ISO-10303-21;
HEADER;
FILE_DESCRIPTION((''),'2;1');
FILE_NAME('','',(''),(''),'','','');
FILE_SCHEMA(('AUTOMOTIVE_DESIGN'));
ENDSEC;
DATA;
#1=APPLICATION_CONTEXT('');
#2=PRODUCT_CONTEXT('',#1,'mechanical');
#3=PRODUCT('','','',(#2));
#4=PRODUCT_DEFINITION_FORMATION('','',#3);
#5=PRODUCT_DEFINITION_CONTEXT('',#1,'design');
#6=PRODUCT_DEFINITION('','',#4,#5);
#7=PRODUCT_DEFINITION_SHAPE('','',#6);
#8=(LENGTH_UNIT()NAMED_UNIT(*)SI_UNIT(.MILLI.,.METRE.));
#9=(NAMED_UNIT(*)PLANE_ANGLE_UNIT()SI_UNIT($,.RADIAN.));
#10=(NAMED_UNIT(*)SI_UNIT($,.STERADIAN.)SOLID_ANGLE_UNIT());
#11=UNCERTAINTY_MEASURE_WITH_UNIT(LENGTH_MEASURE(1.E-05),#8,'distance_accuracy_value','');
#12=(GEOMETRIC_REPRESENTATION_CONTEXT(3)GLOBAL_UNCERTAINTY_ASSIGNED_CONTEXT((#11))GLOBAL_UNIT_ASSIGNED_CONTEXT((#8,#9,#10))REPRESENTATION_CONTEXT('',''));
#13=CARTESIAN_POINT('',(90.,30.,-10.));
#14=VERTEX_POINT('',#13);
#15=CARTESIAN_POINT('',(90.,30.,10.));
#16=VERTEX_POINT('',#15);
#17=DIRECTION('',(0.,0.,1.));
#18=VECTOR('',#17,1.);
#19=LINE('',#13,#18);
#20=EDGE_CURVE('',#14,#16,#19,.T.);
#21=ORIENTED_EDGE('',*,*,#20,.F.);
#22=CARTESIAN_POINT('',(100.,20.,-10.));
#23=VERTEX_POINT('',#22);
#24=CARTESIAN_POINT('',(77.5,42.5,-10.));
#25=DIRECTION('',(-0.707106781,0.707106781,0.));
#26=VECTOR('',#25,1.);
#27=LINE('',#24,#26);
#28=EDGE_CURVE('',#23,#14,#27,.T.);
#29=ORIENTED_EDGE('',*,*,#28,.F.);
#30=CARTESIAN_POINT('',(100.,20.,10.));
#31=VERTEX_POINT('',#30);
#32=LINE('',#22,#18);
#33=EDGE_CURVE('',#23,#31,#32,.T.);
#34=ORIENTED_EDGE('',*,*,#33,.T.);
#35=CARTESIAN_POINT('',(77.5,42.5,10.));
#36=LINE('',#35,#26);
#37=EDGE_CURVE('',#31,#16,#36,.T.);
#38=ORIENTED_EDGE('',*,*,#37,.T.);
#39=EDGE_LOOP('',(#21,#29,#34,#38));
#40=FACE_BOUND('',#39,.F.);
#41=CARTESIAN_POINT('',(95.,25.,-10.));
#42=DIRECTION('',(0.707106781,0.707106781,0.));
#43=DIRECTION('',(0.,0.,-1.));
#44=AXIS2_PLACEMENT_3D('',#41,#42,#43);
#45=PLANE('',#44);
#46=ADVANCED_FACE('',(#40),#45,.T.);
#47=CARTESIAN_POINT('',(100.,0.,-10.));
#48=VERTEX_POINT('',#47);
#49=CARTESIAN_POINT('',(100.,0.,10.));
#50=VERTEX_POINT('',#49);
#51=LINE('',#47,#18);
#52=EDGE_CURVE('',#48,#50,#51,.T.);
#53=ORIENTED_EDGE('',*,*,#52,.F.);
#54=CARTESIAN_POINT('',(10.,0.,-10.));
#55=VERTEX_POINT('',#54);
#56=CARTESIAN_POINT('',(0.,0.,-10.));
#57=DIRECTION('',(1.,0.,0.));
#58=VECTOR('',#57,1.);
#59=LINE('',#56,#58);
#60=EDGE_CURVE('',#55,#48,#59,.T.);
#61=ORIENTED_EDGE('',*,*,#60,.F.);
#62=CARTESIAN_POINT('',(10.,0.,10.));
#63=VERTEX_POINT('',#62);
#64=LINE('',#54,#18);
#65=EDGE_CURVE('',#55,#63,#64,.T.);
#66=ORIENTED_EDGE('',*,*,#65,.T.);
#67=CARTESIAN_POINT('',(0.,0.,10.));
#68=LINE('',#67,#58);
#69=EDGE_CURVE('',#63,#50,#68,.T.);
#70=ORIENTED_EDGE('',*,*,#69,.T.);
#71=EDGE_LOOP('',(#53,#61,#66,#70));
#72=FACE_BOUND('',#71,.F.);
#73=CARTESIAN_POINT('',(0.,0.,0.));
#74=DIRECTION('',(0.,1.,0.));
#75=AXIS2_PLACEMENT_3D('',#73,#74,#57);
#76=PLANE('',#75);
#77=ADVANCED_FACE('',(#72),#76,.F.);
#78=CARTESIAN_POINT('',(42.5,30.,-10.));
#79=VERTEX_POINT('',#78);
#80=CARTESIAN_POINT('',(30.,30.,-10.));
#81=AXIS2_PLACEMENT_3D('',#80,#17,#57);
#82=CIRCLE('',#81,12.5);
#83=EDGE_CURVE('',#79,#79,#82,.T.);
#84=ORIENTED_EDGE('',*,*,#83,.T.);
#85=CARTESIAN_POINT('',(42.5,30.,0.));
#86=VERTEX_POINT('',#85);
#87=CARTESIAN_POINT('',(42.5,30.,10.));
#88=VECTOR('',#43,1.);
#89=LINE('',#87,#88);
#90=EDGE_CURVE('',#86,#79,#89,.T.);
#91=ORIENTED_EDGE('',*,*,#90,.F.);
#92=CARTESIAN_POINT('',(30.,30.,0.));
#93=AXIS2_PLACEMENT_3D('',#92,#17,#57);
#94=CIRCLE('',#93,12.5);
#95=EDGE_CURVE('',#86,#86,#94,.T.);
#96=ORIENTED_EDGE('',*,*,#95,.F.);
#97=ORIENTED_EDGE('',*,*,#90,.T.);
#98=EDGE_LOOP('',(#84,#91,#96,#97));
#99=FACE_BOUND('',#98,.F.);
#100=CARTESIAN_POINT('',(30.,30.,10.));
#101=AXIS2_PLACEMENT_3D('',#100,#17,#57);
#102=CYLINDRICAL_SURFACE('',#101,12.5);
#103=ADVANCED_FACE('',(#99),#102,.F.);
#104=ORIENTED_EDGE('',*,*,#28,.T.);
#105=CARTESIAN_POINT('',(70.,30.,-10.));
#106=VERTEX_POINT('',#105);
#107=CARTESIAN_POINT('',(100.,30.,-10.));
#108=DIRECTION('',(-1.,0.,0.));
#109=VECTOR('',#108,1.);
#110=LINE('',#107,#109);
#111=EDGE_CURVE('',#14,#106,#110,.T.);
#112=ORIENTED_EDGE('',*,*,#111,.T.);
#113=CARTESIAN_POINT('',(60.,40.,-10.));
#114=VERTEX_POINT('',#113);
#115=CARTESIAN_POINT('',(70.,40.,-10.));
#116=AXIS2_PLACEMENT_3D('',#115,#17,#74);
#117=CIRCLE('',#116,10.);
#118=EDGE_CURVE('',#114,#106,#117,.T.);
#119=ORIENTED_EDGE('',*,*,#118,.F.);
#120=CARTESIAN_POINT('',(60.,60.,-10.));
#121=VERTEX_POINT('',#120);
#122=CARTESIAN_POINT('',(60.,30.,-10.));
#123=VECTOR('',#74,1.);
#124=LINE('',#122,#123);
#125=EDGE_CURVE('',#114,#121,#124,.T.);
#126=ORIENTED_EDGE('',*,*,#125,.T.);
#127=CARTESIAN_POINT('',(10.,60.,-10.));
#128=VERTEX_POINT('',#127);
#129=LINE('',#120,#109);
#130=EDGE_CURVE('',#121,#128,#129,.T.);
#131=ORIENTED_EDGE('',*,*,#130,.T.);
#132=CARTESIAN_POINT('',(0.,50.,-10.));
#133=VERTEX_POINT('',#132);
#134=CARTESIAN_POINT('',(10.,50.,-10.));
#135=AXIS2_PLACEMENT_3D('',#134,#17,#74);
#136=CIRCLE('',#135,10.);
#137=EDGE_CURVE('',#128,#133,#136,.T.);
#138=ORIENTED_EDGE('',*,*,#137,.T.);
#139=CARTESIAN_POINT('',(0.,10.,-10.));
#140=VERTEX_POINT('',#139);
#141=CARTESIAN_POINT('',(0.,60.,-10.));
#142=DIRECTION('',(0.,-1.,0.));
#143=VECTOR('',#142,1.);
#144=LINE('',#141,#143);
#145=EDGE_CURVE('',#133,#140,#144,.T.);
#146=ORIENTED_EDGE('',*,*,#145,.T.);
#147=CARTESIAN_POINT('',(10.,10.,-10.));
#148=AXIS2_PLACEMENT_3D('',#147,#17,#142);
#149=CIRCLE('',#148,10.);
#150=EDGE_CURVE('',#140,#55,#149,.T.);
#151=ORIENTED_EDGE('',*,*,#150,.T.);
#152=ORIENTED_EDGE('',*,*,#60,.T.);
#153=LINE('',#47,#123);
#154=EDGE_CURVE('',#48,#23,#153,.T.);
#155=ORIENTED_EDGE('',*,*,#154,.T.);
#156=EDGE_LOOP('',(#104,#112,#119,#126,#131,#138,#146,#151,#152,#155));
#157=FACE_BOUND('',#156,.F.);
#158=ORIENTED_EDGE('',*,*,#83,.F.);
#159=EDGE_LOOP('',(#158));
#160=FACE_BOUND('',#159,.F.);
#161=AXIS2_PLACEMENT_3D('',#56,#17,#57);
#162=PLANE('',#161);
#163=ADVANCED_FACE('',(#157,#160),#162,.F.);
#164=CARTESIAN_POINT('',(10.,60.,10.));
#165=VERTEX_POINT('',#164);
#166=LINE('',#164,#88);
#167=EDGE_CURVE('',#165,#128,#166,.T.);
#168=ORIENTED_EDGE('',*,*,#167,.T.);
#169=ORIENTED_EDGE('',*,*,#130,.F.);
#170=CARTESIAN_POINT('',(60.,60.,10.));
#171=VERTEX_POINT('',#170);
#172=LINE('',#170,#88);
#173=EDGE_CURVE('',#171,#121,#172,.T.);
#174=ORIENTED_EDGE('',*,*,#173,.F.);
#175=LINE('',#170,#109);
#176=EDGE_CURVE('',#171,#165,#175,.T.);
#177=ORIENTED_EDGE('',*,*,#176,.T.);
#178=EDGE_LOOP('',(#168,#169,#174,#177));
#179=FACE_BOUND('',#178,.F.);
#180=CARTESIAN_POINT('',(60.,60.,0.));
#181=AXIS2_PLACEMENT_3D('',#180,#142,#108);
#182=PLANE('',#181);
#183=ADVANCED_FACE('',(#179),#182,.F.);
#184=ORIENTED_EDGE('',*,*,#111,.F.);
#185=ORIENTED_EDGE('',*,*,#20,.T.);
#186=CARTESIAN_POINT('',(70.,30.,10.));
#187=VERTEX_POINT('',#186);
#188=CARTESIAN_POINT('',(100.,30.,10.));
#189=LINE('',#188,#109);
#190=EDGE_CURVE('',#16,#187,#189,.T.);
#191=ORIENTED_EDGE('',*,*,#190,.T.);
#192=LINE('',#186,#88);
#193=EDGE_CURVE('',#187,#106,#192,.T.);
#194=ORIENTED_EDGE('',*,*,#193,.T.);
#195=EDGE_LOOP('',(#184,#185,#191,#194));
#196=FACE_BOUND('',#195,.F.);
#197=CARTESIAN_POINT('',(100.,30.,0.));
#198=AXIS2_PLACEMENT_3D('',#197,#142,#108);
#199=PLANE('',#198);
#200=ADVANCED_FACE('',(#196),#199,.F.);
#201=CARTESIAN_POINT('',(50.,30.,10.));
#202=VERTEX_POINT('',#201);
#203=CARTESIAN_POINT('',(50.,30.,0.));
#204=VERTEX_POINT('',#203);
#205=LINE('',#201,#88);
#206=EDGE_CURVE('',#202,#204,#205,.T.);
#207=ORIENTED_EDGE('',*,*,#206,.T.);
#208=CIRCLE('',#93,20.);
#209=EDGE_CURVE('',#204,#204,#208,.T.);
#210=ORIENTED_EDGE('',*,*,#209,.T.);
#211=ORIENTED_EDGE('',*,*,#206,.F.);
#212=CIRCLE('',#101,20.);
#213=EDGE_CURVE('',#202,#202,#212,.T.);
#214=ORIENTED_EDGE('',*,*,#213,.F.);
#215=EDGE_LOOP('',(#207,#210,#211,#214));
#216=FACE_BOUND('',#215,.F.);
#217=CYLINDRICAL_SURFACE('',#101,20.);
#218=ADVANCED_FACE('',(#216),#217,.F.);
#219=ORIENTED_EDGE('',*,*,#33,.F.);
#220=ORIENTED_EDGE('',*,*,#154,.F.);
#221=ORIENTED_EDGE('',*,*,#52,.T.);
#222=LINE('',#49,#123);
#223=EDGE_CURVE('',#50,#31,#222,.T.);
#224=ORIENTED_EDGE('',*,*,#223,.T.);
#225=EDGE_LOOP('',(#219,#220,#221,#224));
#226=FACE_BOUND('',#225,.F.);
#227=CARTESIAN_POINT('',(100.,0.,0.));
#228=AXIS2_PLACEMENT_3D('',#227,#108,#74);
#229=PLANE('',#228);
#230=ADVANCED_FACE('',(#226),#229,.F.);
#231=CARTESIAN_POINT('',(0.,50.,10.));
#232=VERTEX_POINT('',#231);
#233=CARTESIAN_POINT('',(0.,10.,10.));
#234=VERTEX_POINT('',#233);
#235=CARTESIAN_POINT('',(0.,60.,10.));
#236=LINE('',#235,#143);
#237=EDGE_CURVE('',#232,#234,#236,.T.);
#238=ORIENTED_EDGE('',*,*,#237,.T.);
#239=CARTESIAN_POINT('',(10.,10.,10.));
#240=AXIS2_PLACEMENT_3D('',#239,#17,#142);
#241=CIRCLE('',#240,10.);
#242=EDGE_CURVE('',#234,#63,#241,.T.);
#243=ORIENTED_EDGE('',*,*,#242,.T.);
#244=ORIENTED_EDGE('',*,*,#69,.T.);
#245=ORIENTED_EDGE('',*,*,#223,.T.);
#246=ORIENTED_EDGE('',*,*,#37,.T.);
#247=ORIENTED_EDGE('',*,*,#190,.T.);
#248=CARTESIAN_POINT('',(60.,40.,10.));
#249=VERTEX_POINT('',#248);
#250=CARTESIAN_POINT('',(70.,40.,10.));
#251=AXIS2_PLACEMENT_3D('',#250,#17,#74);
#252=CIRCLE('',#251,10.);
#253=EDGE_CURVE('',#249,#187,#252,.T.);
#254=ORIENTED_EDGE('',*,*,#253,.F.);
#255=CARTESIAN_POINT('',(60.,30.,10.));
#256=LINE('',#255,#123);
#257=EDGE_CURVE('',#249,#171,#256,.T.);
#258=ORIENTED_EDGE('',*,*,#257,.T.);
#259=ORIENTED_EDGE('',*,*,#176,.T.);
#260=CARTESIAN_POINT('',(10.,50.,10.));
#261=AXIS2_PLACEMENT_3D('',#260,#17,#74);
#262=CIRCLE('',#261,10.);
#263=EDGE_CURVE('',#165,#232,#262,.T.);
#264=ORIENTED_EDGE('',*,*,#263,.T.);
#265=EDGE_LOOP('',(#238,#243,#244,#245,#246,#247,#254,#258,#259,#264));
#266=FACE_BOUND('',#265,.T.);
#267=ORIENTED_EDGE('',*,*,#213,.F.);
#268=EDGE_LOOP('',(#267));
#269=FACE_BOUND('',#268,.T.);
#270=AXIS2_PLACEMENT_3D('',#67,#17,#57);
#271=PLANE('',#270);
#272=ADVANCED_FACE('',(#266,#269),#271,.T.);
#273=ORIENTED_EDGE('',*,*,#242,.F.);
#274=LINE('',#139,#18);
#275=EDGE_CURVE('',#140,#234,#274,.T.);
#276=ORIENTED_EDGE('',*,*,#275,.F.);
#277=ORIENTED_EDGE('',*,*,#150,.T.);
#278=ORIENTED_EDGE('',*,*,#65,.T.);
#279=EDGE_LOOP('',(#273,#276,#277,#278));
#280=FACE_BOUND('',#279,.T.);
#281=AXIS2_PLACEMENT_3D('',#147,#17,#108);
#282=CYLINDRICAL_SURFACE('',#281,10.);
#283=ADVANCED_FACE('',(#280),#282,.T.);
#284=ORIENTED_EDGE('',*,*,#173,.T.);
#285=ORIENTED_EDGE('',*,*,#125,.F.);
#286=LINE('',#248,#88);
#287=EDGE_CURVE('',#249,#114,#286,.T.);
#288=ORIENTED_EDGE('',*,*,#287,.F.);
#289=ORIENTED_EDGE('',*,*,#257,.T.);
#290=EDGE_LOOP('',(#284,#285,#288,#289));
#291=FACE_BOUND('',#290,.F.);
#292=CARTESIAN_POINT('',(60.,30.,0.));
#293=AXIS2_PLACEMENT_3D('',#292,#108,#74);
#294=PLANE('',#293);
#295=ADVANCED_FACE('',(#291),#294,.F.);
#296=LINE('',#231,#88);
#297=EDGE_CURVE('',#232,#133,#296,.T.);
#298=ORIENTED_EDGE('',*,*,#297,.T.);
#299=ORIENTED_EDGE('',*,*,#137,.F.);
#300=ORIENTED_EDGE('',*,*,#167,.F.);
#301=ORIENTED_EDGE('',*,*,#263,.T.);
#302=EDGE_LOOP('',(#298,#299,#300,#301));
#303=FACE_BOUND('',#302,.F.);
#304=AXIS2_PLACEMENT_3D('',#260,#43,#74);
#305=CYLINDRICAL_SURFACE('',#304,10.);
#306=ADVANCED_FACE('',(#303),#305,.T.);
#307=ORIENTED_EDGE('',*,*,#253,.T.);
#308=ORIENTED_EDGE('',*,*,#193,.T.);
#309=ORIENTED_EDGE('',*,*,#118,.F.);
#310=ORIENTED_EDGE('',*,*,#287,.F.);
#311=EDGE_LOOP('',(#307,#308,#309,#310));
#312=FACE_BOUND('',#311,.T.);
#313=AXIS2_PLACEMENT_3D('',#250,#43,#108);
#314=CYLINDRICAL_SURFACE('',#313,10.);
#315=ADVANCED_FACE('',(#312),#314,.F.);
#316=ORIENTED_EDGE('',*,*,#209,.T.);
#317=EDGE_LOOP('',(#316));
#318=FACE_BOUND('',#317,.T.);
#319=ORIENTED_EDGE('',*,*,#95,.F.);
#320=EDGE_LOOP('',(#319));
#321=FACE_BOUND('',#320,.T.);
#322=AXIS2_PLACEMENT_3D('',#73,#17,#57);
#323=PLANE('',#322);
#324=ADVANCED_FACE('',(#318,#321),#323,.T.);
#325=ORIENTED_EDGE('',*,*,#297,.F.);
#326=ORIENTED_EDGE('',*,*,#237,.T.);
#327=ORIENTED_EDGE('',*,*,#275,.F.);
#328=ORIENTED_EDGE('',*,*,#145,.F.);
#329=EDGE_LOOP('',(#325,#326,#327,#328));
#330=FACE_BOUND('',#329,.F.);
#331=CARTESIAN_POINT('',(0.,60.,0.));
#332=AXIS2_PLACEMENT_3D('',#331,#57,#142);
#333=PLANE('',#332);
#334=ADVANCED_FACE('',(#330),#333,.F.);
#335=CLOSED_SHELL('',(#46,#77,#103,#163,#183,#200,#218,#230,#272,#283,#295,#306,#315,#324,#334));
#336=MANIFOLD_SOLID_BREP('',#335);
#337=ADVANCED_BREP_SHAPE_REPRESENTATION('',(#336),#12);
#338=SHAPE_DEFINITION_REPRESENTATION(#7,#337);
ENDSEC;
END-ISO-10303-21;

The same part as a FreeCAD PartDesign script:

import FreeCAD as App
import Part
import Sketcher

V = App.Vector
Q = App.Units.Quantity


def edges_at(feature, points):
    """Names of the edges that pass closest to the given points."""
    edges = feature.Shape.Edges
    near = lambda p: min(range(len(edges)), key=lambda i: edges[i].distToShape(Part.Vertex(*p))[0])
    return sorted({f"Edge{near(p) + 1}" for p in points})


def add_polygon(sketch, points):
    """Adds a closed chain of lines whose ends are joined by coincident constraints."""
    first, n = sketch.GeometryCount, len(points)
    for a, b in zip(points, points[1:] + points[:1]):
        sketch.addGeometry(Part.LineSegment(App.Vector(*a, 0), App.Vector(*b, 0)), False)
    for i in range(n):
        sketch.addConstraint(Sketcher.Constraint("Coincident", first + i, 2, first + (i + 1) % n, 1))

doc = App.newDocument("Part")
body = doc.addObject("PartDesign::Body", "Body")

# Sketch on XY plane
sketch1 = body.newObject("Sketcher::SketchObject", "Sketch")
sketch1.AttachmentSupport = (doc.getObject("XY_Plane"), [""])
sketch1.MapMode = "FlatFace"
add_polygon(sketch1, [(0, 60), (0, 0), (100, 0), (100, 30), (60, 30), (60, 60)])  # lines 0-5
sketch1.addConstraint([
    Sketcher.Constraint("Vertical", 0),
    Sketcher.Constraint("Horizontal", 1),
    Sketcher.Constraint("Vertical", 2),
    Sketcher.Constraint("Horizontal", 3),
    Sketcher.Constraint("Vertical", 4),
    Sketcher.Constraint("Horizontal", 5),
    Sketcher.Constraint("Coincident", 0, 2, -1, 1),
    Sketcher.Constraint("Equal", 5, 0),
    Sketcher.Constraint("Equal", 2, 4),
    Sketcher.Constraint("DistanceX", 1, 1, 1, 2, Q("100 mm")),
    Sketcher.Constraint("DistanceX", 3, 2, 3, 1, Q("40 mm")),
])
pad1 = body.newObject("PartDesign::Pad", "Pad")
pad1.Profile = sketch1
pad1.Length = 20
pad1.Midplane = True
doc.recompute()

fillet = body.newObject("PartDesign::Fillet", "Fillet")
fillet.Base = (pad1, edges_at(pad1, [(60, 30, 0)]))
fillet.Radius = 10
doc.recompute()

fillet2 = body.newObject("PartDesign::Fillet", "Fillet001")
fillet2.Base = (fillet, edges_at(fillet, [(0, 60, 0)]))
fillet2.Radius = 10
doc.recompute()

fillet3 = body.newObject("PartDesign::Fillet", "Fillet002")
fillet3.Base = (fillet2, edges_at(fillet2, [(0, 0, 0)]))
fillet3.Radius = 10
doc.recompute()

chamfer = body.newObject("PartDesign::Chamfer", "Chamfer")
chamfer.Base = (fillet3, edges_at(fillet3, [(100, 30, 0)]))
chamfer.Size = 10

# Sketch on XY plane
sketch2 = body.newObject("Sketcher::SketchObject", "Sketch001")
sketch2.AttachmentSupport = (doc.getObject("XY_Plane"), [""])
sketch2.MapMode = "FlatFace"
sketch2.AttachmentOffset = App.Placement(V(0, 0, 10), App.Rotation())
sketch2.addGeometry(Part.Circle(V(30, 30, 0), V(0, 0, 1), 12.5), False)
sketch2.addConstraint([
    Sketcher.Constraint("Diameter", 0, Q("25 mm")),
    Sketcher.Constraint("DistanceX", -1, 1, 0, 3, Q("30 mm")),
    Sketcher.Constraint("DistanceY", -1, 1, 0, 3, Q("30 mm")),
])
pocket1 = body.newObject("PartDesign::Pocket", "Pocket")
pocket1.Profile = sketch2
pocket1.Length = 20

# Sketch on XY plane
sketch3 = body.newObject("Sketcher::SketchObject", "Sketch002")
sketch3.AttachmentSupport = (doc.getObject("XY_Plane"), [""])
sketch3.MapMode = "FlatFace"
sketch3.AttachmentOffset = App.Placement(V(0, 0, 10), App.Rotation())
sketch3.addGeometry(Part.Circle(V(30, 30, 0), V(0, 0, 1), 20), False)
sketch3.addConstraint([
    Sketcher.Constraint("Diameter", 0, Q("40 mm")),
    Sketcher.Constraint("DistanceX", -1, 1, 0, 3, Q("30 mm")),
    Sketcher.Constraint("DistanceY", -1, 1, 0, 3, Q("30 mm")),
])
pocket2 = body.newObject("PartDesign::Pocket", "Pocket001")
pocket2.Profile = sketch3
pocket2.Length = 10

doc.recompute()
